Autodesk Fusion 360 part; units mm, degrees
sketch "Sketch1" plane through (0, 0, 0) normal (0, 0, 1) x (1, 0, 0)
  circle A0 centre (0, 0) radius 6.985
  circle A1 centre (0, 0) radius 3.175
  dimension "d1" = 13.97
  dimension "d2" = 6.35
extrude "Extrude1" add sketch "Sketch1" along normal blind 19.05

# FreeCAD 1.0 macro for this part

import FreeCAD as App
import Part
import Sketcher
Q = App.Units.Quantity

doc = App.newDocument("Part")
params = doc.addObject("Spreadsheet::Sheet", "Params")
for row, (alias, value) in enumerate([
    ("sketch1_diameter", "0.55 in"),
    ("sketch1_diameter2", "0.25 in"),
    ("pad1_length", "0.75 in"),
], start=1):
    params.set(f"A{row}", alias)
    params.set(f"B{row}", "=" + value)
    params.setAlias(f"B{row}", alias)

body = doc.addObject("PartDesign::Body", "Body")

# Sketch on XY plane
sketch1 = doc.addObject("Sketcher::SketchObject", "Sketch")
body.addObject(sketch1)
sketch1.AttachmentSupport = (doc.XY_Plane, [""])
sketch1.MapMode = "FlatFace"
sketch1.addGeometry([
    Part.Circle(App.Vector(0, 0, 0), App.Vector(0, 0, 1), 6.985),
    Part.Circle(App.Vector(0, 0, 0), App.Vector(0, 0, 1), 3.175),
], False)
sketch1.addConstraint([
    Sketcher.Constraint("Coincident", 0, 3, -1, 1),
    Sketcher.Constraint("Coincident", 1, 3, -1, 1),
    Sketcher.Constraint("Diameter", 0, Q("0.55 in")),
    Sketcher.Constraint("Diameter", 1, Q("0.25 in")),
])
sketch1.setExpression("Constraints[2]", "Params.sketch1_diameter")
sketch1.setExpression("Constraints[3]", "Params.sketch1_diameter2")
pad1 = doc.addObject("PartDesign::Pad", "Pad")
body.addObject(pad1)
pad1.Profile = sketch1
pad1.setExpression("Length", "Params.pad1_length")

doc.recompute()
